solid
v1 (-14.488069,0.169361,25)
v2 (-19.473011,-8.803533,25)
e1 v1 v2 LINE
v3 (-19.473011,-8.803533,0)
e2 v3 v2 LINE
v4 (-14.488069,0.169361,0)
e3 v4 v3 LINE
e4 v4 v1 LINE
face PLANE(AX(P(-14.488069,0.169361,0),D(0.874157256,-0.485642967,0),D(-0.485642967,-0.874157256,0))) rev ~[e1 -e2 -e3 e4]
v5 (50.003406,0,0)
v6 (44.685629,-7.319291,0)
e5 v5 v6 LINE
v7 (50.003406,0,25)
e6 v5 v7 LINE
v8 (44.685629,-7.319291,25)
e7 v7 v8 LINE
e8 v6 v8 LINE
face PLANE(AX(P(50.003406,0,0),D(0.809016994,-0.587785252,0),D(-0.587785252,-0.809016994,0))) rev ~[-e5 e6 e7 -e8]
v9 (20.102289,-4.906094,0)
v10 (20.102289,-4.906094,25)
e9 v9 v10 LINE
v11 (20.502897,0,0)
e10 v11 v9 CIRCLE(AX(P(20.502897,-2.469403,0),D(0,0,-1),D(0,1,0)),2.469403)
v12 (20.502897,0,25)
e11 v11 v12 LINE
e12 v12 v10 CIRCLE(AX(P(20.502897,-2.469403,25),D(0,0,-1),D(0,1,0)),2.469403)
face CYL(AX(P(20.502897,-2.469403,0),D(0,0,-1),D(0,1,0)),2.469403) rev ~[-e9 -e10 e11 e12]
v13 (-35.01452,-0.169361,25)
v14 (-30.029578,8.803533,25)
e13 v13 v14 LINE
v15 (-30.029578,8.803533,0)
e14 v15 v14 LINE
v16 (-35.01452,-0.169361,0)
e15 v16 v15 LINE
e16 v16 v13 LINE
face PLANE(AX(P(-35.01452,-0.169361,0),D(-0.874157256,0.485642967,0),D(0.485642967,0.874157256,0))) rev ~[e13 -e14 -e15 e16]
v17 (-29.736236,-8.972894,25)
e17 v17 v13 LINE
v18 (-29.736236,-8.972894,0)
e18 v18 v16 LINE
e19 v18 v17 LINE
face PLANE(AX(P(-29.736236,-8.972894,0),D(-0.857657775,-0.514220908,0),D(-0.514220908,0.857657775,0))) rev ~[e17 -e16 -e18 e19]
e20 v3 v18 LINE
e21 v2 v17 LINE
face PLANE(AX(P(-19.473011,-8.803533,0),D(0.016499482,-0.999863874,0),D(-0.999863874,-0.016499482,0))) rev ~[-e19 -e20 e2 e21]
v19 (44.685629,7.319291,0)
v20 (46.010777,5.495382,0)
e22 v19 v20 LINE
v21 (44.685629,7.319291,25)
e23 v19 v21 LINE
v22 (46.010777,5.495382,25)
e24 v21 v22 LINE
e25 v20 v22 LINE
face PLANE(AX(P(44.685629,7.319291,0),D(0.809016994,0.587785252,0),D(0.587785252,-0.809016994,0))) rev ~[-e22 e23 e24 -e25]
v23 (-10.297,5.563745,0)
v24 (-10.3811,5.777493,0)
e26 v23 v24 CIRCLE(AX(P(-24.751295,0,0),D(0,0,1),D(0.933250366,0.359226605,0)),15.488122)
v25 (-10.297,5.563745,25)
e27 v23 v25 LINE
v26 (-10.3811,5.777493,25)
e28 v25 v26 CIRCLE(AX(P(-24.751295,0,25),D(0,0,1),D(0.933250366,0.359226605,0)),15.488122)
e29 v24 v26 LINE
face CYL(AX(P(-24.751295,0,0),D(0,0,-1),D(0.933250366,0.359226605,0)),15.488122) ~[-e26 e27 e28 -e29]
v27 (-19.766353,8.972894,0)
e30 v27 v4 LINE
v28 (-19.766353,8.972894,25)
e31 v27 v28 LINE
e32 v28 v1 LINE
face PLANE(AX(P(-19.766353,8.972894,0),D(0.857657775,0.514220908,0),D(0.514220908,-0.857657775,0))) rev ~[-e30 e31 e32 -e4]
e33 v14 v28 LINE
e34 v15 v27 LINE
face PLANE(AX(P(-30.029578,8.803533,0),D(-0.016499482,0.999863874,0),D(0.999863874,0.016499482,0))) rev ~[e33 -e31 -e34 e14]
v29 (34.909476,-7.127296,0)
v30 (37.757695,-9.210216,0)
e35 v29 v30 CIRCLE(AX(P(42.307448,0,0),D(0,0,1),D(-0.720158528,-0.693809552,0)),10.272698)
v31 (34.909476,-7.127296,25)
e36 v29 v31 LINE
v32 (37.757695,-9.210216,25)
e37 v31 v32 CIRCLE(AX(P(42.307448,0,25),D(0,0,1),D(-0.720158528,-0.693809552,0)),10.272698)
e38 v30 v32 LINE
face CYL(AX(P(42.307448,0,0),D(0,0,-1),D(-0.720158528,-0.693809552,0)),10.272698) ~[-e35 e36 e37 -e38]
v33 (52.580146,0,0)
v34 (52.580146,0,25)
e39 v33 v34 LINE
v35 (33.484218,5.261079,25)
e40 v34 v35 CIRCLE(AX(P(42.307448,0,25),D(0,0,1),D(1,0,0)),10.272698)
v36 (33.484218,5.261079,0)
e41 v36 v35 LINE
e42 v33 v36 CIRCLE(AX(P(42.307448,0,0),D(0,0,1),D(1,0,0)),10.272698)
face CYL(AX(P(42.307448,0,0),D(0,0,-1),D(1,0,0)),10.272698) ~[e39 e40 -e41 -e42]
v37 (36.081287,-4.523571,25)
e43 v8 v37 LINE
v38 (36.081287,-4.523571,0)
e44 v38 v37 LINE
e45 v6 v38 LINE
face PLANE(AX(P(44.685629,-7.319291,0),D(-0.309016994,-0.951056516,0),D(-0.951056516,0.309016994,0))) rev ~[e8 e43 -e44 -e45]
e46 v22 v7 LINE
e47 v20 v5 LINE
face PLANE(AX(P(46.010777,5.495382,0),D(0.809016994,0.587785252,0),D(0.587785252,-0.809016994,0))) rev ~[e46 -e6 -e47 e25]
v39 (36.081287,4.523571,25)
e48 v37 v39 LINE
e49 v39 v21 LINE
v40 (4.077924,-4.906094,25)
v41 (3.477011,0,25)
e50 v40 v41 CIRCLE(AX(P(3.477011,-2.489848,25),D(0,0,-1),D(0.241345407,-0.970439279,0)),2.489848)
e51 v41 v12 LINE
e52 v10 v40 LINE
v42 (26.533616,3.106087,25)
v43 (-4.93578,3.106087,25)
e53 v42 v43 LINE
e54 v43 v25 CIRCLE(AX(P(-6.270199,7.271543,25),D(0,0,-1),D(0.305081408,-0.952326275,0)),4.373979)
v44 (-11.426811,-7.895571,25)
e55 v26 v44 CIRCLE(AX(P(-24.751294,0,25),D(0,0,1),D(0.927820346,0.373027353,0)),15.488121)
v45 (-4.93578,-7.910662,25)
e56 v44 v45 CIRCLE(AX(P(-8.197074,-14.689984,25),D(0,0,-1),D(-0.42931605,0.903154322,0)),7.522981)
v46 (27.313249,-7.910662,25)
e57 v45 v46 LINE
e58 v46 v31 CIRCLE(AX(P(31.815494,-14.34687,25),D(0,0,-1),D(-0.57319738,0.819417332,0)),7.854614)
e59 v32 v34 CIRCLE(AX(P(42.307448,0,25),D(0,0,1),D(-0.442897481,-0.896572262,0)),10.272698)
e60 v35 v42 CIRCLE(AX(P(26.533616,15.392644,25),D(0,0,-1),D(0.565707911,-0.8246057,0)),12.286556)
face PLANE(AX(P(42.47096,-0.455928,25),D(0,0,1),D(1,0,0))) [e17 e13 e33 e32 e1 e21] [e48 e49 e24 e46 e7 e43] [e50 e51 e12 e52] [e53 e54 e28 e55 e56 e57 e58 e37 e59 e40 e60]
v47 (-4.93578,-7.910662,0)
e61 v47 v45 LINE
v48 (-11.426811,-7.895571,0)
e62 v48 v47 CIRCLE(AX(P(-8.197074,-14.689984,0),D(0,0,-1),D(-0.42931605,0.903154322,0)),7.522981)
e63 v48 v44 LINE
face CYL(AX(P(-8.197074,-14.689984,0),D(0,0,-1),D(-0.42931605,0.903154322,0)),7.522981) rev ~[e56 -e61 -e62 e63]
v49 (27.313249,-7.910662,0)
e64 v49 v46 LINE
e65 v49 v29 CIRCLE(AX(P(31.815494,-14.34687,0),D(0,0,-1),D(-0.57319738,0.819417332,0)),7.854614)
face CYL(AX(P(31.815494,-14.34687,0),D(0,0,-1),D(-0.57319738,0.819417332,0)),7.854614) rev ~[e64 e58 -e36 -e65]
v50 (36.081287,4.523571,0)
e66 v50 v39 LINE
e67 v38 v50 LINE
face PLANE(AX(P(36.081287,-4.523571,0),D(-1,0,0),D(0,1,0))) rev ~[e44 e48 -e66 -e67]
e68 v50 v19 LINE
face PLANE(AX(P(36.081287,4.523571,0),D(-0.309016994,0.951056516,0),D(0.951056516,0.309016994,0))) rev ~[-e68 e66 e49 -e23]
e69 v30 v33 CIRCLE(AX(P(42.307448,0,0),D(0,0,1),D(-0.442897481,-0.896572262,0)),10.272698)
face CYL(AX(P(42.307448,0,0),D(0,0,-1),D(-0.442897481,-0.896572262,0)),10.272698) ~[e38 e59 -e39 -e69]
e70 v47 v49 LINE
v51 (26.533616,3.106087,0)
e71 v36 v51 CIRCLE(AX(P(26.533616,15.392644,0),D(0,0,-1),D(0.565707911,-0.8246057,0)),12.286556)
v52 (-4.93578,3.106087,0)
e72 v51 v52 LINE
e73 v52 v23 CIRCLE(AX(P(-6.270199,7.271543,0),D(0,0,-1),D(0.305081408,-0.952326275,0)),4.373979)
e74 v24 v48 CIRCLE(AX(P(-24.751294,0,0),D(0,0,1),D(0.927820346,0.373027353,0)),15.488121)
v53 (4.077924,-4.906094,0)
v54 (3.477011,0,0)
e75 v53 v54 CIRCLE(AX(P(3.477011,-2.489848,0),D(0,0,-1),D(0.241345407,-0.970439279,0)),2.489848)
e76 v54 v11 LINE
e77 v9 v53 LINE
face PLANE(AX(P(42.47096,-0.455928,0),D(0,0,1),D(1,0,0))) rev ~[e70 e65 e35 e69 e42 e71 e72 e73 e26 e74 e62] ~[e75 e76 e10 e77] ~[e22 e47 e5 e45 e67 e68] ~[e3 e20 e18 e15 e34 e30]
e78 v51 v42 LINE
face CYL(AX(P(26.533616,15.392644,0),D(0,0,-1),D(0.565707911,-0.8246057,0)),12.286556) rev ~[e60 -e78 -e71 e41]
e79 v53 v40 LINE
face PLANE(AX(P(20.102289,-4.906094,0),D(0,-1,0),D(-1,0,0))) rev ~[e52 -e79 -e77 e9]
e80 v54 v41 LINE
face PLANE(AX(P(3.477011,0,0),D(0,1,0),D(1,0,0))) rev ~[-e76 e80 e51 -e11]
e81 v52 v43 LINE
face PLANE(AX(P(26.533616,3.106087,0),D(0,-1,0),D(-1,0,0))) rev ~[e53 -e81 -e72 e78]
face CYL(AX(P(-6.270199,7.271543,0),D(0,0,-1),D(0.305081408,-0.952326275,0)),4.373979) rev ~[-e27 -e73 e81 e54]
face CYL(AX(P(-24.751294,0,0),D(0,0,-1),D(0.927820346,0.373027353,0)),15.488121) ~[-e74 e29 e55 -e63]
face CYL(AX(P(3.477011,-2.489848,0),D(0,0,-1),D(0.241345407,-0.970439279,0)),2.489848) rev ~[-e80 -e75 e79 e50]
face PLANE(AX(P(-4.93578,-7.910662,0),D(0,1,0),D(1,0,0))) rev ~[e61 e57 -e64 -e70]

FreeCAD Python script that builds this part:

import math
import FreeCAD as App
import Part
import Sketcher
from FreeCAD import Vector
Q = App.Units.Quantity

doc = App.newDocument("Part")
body = doc.addObject("PartDesign::Body", "Body")

sketch1 = doc.addObject("Sketcher::SketchObject", "Sketch")
body.addObject(sketch1)
sketch1.AttachmentSupport = (doc.XY_Plane, [""])
sketch1.MapMode = "FlatFace"
sketch1.addGeometry([
    Part.ArcOfCircle(Part.Circle(Vector(42.31, 0, 0), Vector(0, 0, 1), 10.27), math.radians(-116), math.radians(0)),
    Part.ArcOfCircle(Part.Circle(Vector(42.31, 0, 0), Vector(0, 0, 1), 10.27), math.radians(0), math.radians(149)),
    Part.ArcOfCircle(Part.Circle(Vector(26.53, 15.39, 0), Vector(0, 0, 1), 12.29), math.radians(-90), math.radians(-56)),
    Part.LineSegment(Vector(26.53, 3.11, 0), Vector(-4.94, 3.11, 0)),
    Part.ArcOfCircle(Part.Circle(Vector(-6.27, 7.27, 0), Vector(0, 0, 1), 4.37), math.radians(-157), math.radians(-72)),
    Part.ArcOfCircle(Part.Circle(Vector(-24.75, 0, 0), Vector(0, 0, 1), 15.49), math.radians(21.05), math.radians(21.9)),
    Part.ArcOfCircle(Part.Circle(Vector(-24.75, 0, 0), Vector(0, 0, 1), 15.49), math.radians(22), math.radians(329)),
    Part.ArcOfCircle(Part.Circle(Vector(-8.2, -14.69, 0), Vector(0, 0, 1), 7.52), math.radians(64), math.radians(115)),
    Part.LineSegment(Vector(-4.94, -7.91, 0), Vector(27.31, -7.91, 0)),
    Part.ArcOfCircle(Part.Circle(Vector(31.82, -14.35, 0), Vector(0, 0, 1), 7.85), math.radians(67), math.radians(125)),
    Part.ArcOfCircle(Part.Circle(Vector(42.31, 0, 0), Vector(0, 0, 1), 10.27), math.radians(-136.07), math.radians(-116.29)),
    Part.LineSegment(Vector(20.1, -4.91, 0), Vector(4.08, -4.91, 0)),
    Part.ArcOfCircle(Part.Circle(Vector(3.48, -2.49, 0), Vector(0, 0, 1), 2.49), math.radians(90), math.radians(284)),
    Part.LineSegment(Vector(3.48, 0, 0), Vector(20.5, 0, 0)),
    Part.ArcOfCircle(Part.Circle(Vector(20.5, -2.47, 0), Vector(0, 0, 1), 2.47), math.radians(-99), math.radians(90)),
    Part.LineSegment(Vector(44.69, 7.32, 0), Vector(46.01, 5.5, 0)),
    Part.LineSegment(Vector(46.01, 5.5, 0), Vector(50, 0, 0)),
    Part.LineSegment(Vector(50, 0, 0), Vector(44.69, -7.32, 0)),
    Part.LineSegment(Vector(44.69, -7.32, 0), Vector(36.08, -4.52, 0)),
    Part.LineSegment(Vector(36.08, -4.52, 0), Vector(36.08, 4.52, 0)),
    Part.LineSegment(Vector(36.08, 4.52, 0), Vector(44.69, 7.32, 0)),
    Part.LineSegment(Vector(-30.03, 8.8, 0), Vector(-19.77, 8.97, 0)),
    Part.LineSegment(Vector(-19.77, 8.97, 0), Vector(-14.49, 0.17, 0)),
    Part.LineSegment(Vector(-14.49, 0.17, 0), Vector(-19.47, -8.8, 0)),
    Part.LineSegment(Vector(-19.47, -8.8, 0), Vector(-29.74, -8.97, 0)),
    Part.LineSegment(Vector(-29.74, -8.97, 0), Vector(-35.01, -0.17, 0)),
    Part.LineSegment(Vector(-35.01, -0.17, 0), Vector(-30.03, 8.8, 0)),
], False)
sketch1.addConstraint([
    Sketcher.Constraint("Tangent", 0, 2, 1, 1),
    Sketcher.Constraint("Coincident", 1, 2, 2, 2),
    Sketcher.Constraint("Tangent", 2, 1, 3, 1),
    Sketcher.Constraint("Coincident", 3, 2, 4, 2),
    Sketcher.Constraint("Coincident", 4, 1, 5, 1),
    Sketcher.Constraint("Tangent", 5, 2, 6, 1),
    Sketcher.Constraint("Coincident", 6, 2, 7, 2),
    Sketcher.Constraint("Coincident", 7, 1, 8, 1),
    Sketcher.Constraint("Coincident", 8, 2, 9, 2),
    Sketcher.Constraint("Coincident", 9, 1, 10, 1),
    Sketcher.Constraint("Tangent", 10, 2, 0, 1),
    Sketcher.Constraint("Coincident", 11, 2, 12, 2),
    Sketcher.Constraint("Tangent", 12, 1, 13, 1),
    Sketcher.Constraint("Tangent", 13, 2, 14, 2),
    Sketcher.Constraint("Coincident", 14, 1, 11, 1),
    Sketcher.Constraint("Coincident", 15, 2, 16, 1),
    Sketcher.Constraint("Coincident", 16, 2, 17, 1),
    Sketcher.Constraint("Coincident", 17, 2, 18, 1),
    Sketcher.Constraint("Coincident", 18, 2, 19, 1),
    Sketcher.Constraint("Coincident", 19, 2, 20, 1),
    Sketcher.Constraint("Coincident", 20, 2, 15, 1),
    Sketcher.Constraint("Coincident", 21, 2, 22, 1),
    Sketcher.Constraint("Coincident", 22, 2, 23, 1),
    Sketcher.Constraint("Coincident", 23, 2, 24, 1),
    Sketcher.Constraint("Coincident", 24, 2, 25, 1),
    Sketcher.Constraint("Coincident", 25, 2, 26, 1),
    Sketcher.Constraint("Coincident", 26, 2, 21, 1),
    Sketcher.Constraint("Horizontal", 3),
    Sketcher.Constraint("Horizontal", 8),
    Sketcher.Constraint("Horizontal", 11),
    Sketcher.Constraint("Horizontal", 13),
    Sketcher.Constraint("Vertical", 19),
    Sketcher.Constraint("Equal", 0, 1),
    Sketcher.Constraint("Equal", 5, 6),
    Sketcher.Constraint("Equal", 1, 10),
    Sketcher.Constraint("Symmetric", 17, 2, 20, 2, -1),
    Sketcher.Constraint("PointOnObject", 0, 3, -1),
    Sketcher.Constraint("PointOnObject", 5, 3, -1),
    Sketcher.Constraint("PointOnObject", 0, 2, -1),
    Sketcher.Constraint("PointOnObject", 12, 1, -1),
    Sketcher.Constraint("PointOnObject", 16, 2, -1),
    Sketcher.Constraint("Parallel", 15, 16),
    Sketcher.Constraint("Parallel", 21, 24),
    Sketcher.Constraint("Parallel", 22, 25),
    Sketcher.Constraint("Parallel", 23, 26),
    Sketcher.Constraint("Vertical", 3, 2, 7, 1),
    Sketcher.Constraint("Equal", 17, 18),
    Sketcher.Constraint("Equal", 18, 20),
    Sketcher.Constraint("Equal", 21, 22),
    Sketcher.Constraint("Equal", 22, 23),
    Sketcher.Constraint("Equal", 23, 24),
    Sketcher.Constraint("Angle", 15, Q("-54 deg")),
    Sketcher.Constraint("Angle", 18, Q("162 deg")),
    Sketcher.Constraint("Radius", 0, 10.272698),
    Sketcher.Constraint("Radius", 4, 4.373979),
    Sketcher.Constraint("Radius", 5, 15.488122),
    Sketcher.Constraint("Radius", 7, 7.522981),
    Sketcher.Constraint("DistanceX", 4, 1, -1, 1, 10.297),
    Sketcher.Constraint("Radius", 2, 12.286556),
    Sketcher.Constraint("Radius", 9, 7.854614),
    Sketcher.Constraint("Radius", 12, 2.489848),
    Sketcher.Constraint("Radius", 14, 2.469403),
    Sketcher.Constraint("DistanceX", 7, 3, 11, 2, 12.274999),
    Sketcher.Constraint("DistanceX", 8, 1, 8, 2, 32.249029),
    Sketcher.Constraint("DistanceY", 19, 1, 19, 2, 9.047141),
    Sketcher.Constraint("DistanceX", 4, 3, -1, 1, 6.270199),
    Sketcher.Constraint("DistanceX", 5, 2, -1, 1, 10.3811),
    Sketcher.Constraint("DistanceY", 4, 3, 2, 3, 8.121101),
    Sketcher.Constraint("DistanceX", 8, 2, 10, 3, 14.994198),
    Sketcher.Constraint("DistanceX", 9, 3, 10, 2, 5.942202),
    Sketcher.Constraint("DistanceY", 5, 2, 21, 2, 3.195401),
    Sketcher.Constraint("DistanceX", 23, 2, 6, 2, 8.0462),
    Sketcher.Constraint("DistanceX", 3, 2, 3, 1, 31.469396),
    Sketcher.Constraint("DistanceX", 11, 2, 11, 1, 16.024364),
    Sketcher.Constraint("DistanceX", 13, 1, 13, 2, 17.025886),
    Sketcher.Constraint("DistanceY", 9, 3, -1, 1, 14.34687),
    Sketcher.Constraint("DistanceX", -1, 1, 12, 3, 3.477011),
    Sketcher.Constraint("DistanceX", -1, 1, 1, 2, 33.484218),
    Sketcher.Constraint("DistanceX", 6, 2, -1, 1, 11.426811),
    Sketcher.Constraint("DistanceX", -1, 1, 17, 2, 44.685629),
    Sketcher.Constraint("DistanceX", 22, 2, -1, 1, 14.488069),
    Sketcher.Constraint("DistanceY", -1, 1, 22, 2, 0.169361),
    Sketcher.Constraint("DistanceX", 25, 2, -1, 1, 35.01452),
    Sketcher.Constraint("DistanceY", 25, 2, -1, 1, 0.169361),
    Sketcher.Constraint("DistanceX", 0, 3, 15, 2, 3.703329),
])
pad1 = doc.addObject("PartDesign::Pad", "Pad")
body.addObject(pad1)
pad1.Profile = sketch1
pad1.Length = 25

doc.recompute()
